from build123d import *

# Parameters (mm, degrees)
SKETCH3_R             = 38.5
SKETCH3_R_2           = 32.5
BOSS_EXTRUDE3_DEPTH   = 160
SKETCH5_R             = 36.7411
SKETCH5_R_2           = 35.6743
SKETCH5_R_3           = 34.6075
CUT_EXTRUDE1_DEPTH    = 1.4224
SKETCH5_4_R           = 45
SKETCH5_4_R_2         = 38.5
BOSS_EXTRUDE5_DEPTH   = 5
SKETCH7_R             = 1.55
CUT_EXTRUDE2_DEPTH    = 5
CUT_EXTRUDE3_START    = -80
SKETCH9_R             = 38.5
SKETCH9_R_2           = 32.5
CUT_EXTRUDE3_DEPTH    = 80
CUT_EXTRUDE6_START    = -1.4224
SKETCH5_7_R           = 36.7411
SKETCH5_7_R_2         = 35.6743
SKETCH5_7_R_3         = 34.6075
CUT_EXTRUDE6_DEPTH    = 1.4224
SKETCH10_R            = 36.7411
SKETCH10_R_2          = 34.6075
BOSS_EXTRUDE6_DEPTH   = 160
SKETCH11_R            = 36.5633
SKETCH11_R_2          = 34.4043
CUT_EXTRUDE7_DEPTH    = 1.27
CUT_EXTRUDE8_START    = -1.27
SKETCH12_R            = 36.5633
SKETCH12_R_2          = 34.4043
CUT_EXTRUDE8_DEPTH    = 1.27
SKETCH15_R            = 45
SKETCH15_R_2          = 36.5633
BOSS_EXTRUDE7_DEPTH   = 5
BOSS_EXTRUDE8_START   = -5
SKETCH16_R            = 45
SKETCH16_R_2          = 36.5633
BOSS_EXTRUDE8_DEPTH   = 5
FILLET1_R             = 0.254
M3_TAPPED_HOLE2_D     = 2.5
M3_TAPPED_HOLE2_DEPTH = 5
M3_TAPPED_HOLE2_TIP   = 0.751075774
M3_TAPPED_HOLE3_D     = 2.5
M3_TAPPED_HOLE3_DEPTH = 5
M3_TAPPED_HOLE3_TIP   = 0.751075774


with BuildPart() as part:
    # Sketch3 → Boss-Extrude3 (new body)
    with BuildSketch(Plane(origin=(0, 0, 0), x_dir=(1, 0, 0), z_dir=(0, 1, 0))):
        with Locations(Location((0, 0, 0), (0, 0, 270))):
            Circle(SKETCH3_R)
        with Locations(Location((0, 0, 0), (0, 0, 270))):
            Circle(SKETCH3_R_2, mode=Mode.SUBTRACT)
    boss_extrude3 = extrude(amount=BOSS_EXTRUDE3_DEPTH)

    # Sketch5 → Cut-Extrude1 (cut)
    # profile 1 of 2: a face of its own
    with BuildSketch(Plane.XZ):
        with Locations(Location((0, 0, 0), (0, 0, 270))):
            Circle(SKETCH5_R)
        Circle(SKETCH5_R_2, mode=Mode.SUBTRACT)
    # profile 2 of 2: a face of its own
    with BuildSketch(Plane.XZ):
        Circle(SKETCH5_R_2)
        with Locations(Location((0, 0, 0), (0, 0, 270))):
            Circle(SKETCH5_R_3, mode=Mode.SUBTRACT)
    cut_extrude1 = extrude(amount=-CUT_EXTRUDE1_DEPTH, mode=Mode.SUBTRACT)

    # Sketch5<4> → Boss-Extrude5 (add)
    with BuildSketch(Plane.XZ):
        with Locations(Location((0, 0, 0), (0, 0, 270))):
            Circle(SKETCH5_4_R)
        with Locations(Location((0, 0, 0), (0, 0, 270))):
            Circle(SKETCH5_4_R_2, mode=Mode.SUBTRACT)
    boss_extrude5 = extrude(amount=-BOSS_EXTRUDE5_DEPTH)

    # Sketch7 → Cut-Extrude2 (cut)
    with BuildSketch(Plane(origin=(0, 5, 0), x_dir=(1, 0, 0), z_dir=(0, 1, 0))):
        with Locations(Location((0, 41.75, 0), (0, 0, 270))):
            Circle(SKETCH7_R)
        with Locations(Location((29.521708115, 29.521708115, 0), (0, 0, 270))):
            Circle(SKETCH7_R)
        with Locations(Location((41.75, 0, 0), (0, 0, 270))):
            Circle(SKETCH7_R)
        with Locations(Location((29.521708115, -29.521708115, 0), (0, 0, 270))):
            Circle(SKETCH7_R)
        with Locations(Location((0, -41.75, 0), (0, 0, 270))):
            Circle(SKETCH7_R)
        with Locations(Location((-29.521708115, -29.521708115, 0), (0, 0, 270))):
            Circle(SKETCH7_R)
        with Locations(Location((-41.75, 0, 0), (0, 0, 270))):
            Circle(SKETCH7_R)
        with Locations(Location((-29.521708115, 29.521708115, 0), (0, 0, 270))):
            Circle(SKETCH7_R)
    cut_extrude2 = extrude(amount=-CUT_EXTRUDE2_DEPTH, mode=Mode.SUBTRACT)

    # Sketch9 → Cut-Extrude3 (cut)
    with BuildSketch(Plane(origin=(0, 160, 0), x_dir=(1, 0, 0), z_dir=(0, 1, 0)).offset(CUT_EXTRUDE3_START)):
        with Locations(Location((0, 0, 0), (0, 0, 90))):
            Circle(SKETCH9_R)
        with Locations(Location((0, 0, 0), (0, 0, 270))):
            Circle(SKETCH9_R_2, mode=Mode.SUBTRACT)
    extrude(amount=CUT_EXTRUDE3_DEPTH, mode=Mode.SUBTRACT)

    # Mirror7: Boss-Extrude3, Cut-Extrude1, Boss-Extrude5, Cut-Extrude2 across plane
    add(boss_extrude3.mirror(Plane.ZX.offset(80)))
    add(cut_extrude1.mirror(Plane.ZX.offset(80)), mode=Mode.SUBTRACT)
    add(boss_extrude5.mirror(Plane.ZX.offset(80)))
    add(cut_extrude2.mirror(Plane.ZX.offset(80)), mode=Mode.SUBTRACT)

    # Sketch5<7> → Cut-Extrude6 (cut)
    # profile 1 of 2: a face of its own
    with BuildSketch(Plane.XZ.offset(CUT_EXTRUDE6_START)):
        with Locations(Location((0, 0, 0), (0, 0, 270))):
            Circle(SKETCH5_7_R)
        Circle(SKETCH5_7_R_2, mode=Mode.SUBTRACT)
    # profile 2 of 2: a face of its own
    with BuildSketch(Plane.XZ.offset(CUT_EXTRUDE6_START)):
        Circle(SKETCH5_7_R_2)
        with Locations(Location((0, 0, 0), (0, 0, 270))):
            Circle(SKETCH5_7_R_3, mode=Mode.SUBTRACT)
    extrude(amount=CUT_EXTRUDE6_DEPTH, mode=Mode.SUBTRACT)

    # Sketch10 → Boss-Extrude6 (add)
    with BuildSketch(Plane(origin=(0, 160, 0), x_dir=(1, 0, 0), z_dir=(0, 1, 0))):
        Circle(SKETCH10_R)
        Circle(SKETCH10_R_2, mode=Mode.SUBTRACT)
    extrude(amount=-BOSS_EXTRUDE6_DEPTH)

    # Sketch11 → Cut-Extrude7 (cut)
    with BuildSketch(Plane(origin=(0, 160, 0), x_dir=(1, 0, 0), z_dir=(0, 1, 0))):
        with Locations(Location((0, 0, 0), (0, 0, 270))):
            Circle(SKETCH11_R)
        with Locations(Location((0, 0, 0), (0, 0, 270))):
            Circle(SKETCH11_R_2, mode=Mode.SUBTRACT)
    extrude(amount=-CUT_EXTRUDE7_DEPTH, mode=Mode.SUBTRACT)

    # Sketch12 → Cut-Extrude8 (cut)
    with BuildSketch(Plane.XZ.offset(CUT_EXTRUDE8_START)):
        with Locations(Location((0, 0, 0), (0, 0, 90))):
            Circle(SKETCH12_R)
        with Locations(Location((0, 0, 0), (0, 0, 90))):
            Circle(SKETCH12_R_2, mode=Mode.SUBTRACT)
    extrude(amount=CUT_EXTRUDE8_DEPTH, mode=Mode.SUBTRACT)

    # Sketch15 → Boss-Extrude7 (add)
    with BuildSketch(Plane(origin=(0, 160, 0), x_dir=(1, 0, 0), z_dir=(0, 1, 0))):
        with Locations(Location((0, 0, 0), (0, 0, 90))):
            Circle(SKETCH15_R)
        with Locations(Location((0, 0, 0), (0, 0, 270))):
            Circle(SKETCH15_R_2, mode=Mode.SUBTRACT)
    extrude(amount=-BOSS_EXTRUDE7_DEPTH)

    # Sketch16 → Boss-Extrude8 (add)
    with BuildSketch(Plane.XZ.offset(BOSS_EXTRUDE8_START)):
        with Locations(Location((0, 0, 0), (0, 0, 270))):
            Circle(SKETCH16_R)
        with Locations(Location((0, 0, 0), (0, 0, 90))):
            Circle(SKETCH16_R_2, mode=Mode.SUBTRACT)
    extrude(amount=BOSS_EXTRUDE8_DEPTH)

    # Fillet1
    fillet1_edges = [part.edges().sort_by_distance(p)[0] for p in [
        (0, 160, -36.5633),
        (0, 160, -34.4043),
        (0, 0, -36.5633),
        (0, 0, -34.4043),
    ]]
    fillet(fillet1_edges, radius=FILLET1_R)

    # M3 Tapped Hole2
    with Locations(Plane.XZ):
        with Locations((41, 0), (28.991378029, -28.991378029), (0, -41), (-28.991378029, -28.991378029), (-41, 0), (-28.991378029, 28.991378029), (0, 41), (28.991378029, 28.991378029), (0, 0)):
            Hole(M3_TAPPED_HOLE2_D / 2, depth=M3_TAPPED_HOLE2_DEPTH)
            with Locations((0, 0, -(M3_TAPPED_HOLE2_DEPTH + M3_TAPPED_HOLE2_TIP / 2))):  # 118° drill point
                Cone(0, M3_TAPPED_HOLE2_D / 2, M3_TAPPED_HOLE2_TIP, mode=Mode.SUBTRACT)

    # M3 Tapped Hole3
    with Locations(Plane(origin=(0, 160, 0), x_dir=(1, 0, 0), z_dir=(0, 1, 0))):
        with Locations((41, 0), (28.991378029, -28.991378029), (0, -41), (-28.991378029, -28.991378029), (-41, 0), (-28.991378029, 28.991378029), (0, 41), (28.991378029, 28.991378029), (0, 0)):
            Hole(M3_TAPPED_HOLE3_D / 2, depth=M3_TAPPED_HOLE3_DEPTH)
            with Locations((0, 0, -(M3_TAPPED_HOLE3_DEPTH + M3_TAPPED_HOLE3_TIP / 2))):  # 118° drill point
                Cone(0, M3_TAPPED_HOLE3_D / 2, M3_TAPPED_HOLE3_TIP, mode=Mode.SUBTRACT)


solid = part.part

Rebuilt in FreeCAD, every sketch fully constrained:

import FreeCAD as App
import Part
import Sketcher


def edges_at(feature, points):
    """Names of the edges that pass closest to the given points."""
    edges = feature.Shape.Edges
    near = lambda p: min(range(len(edges)), key=lambda i: edges[i].distToShape(Part.Vertex(*p))[0])
    return sorted({f"Edge{near(p) + 1}" for p in points})

doc = App.newDocument("Part")
params = doc.addObject("Spreadsheet::Sheet", "Params")
for row, (alias, value) in enumerate([
    ("sketch1_diameter", "77 mm"),
    ("sketch1_diameter2", "65 mm"),
    ("pad1_length", "160 mm"),
    ("pocket1_length", "1.4224 mm"),
    ("sketch3_diameter", "90 mm"),
    ("sketch3_diameter2", "77 mm"),
    ("pad2_length", "5 mm"),
    ("sketch4_diameter", "3.1 mm"),
    ("pocket2_length", "5 mm"),
    ("sketch5_diameter", "77 mm"),
    ("sketch5_diameter2", "65 mm"),
    ("pocket3_length", "80 mm"),
    ("pocket4_length", "1.4224 mm"),
    ("pad3_length", "160 mm"),
    ("pocket5_length", "1.27 mm"),
    ("pocket6_length", "1.27 mm"),
    ("sketch10_diameter", "90 mm"),
    ("pad4_length", "5 mm"),
    ("sketch11_diameter", "90 mm"),
    ("pad5_length", "5 mm"),
    ("fillet_radius", "0.254 mm"),
    ("sketch12_diameter", "2.5 mm"),
    ("hole_diameter", "2.5 mm"),
    ("hole_depth", "5 mm"),
    ("sketch13_diameter", "2.5 mm"),
    ("hole2_diameter", "2.5 mm"),
    ("hole2_depth", "5 mm"),
], start=1):
    params.set(f"A{row}", alias)
    params.set(f"B{row}", "=" + value)
    params.setAlias(f"B{row}", alias)

body = doc.addObject("PartDesign::Body", "Body")

# Sketch on XZ plane
sketch1 = body.newObject("Sketcher::SketchObject", "Sketch")
sketch1.AttachmentSupport = (doc.getObject("XZ_Plane"), [""])
sketch1.MapMode = "FlatFace"
sketch1.addGeometry([
    Part.Circle(App.Vector(0, 0, 0), App.Vector(0, 0, 1), 38),
    Part.Circle(App.Vector(0, 0, 0), App.Vector(0, 0, 1), 32),
], False)
sketch1.addConstraint([
    Sketcher.Constraint("Coincident", 0, 3, -1, 1),
    Sketcher.Constraint("Coincident", 1, 3, -1, 1),
    Sketcher.Constraint("Diameter", 0, 77.0),
    Sketcher.Constraint("Diameter", 1, 65.0),
])
sketch1.setExpression("Constraints[2]", "Params.sketch1_diameter")
sketch1.setExpression("Constraints[3]", "Params.sketch1_diameter2")
pad1 = body.newObject("PartDesign::Pad", "Pad")
pad1.Profile = sketch1
pad1.setExpression("Length", "Params.pad1_length")
pad1.Reversed = True

# Sketch on XZ plane
sketch2 = body.newObject("Sketcher::SketchObject", "Sketch001")
sketch2.AttachmentSupport = (doc.getObject("XZ_Plane"), [""])
sketch2.MapMode = "FlatFace"
sketch2.addGeometry([
    Part.Circle(App.Vector(0, 0, 0), App.Vector(0, 0, 1), 37),
    Part.Circle(App.Vector(0, 0, 0), App.Vector(0, 0, 1), 35),
], False)
sketch2.addConstraint([
    Sketcher.Constraint("Coincident", 0, 3, -1, 1),
    Sketcher.Constraint("Coincident", 1, 3, -1, 1),
    Sketcher.Constraint("Diameter", 1, 69.215),
    Sketcher.Constraint("Diameter", 0, 73.4822),
])
pocket1 = body.newObject("PartDesign::Pocket", "Pocket")
pocket1.Profile = sketch2
pocket1.setExpression("Length", "Params.pocket1_length")

# Sketch on XZ plane
sketch3 = body.newObject("Sketcher::SketchObject", "Sketch002")
sketch3.AttachmentSupport = (doc.getObject("XZ_Plane"), [""])
sketch3.MapMode = "FlatFace"
sketch3.addGeometry([
    Part.Circle(App.Vector(0, 0, 0), App.Vector(0, 0, 1), 45),
    Part.Circle(App.Vector(0, 0, 0), App.Vector(0, 0, 1), 38),
], False)
sketch3.addConstraint([
    Sketcher.Constraint("Coincident", 0, 3, -1, 1),
    Sketcher.Constraint("Coincident", 1, 3, -1, 1),
    Sketcher.Constraint("Diameter", 0, 90.0),
    Sketcher.Constraint("Diameter", 1, 77.0),
])
sketch3.setExpression("Constraints[2]", "Params.sketch3_diameter")
sketch3.setExpression("Constraints[3]", "Params.sketch3_diameter2")
pad2 = body.newObject("PartDesign::Pad", "Pad001")
pad2.Profile = sketch3
pad2.setExpression("Length", "Params.pad2_length")
pad2.Reversed = True

# Sketch on XZ plane
sketch4 = body.newObject("Sketcher::SketchObject", "Sketch003")
sketch4.AttachmentSupport = (doc.getObject("XZ_Plane"), [""])
sketch4.MapMode = "FlatFace"
sketch4.AttachmentOffset = App.Placement(App.Vector(0, 0, -5), App.Rotation())
sketch4.addGeometry([
    Part.Circle(App.Vector(0, -41.8, 0), App.Vector(0, 0, 1), 1.6),  # 0
    Part.Circle(App.Vector(29.5, -29.5, 0), App.Vector(0, 0, 1), 1.6),  # 1
    Part.Circle(App.Vector(41.8, 0, 0), App.Vector(0, 0, 1), 1.6),  # 2
    Part.Circle(App.Vector(29.5, 29.5, 0), App.Vector(0, 0, 1), 1.6),  # 3
    Part.Circle(App.Vector(0, 41.8, 0), App.Vector(0, 0, 1), 1.6),  # 4
    Part.Circle(App.Vector(-29.5, 29.5, 0), App.Vector(0, 0, 1), 1.6),  # 5
    Part.Circle(App.Vector(-41.8, 0, 0), App.Vector(0, 0, 1), 1.6),  # 6
    Part.Circle(App.Vector(-29.5, -29.5, 0), App.Vector(0, 0, 1), 1.6),  # 7
], False)
sketch4.addConstraint([
    Sketcher.Constraint("Equal", 0, 1),
    Sketcher.Constraint("Equal", 1, 2),
    Sketcher.Constraint("Equal", 2, 3),
    Sketcher.Constraint("Equal", 3, 4),
    Sketcher.Constraint("Equal", 4, 5),
    Sketcher.Constraint("Equal", 5, 6),
    Sketcher.Constraint("Equal", 6, 7),
    Sketcher.Constraint("Symmetric", 0, 3, 4, 3, -1, 1),
    Sketcher.Constraint("Symmetric", 1, 3, 5, 3, -1, 1),
    Sketcher.Constraint("Symmetric", 2, 3, 6, 3, -1, 1),
    Sketcher.Constraint("Symmetric", 3, 3, 7, 3, -1, 1),
    Sketcher.Constraint("Symmetric", 3, 3, 5, 3, -2),
    Sketcher.Constraint("PointOnObject", 0, 3, -2),
    Sketcher.Constraint("PointOnObject", 2, 3, -1),
    Sketcher.Constraint("Diameter", 0, 3.1),
    Sketcher.Constraint("DistanceY", 0, 3, 4, 3, 83.5),
    Sketcher.Constraint("DistanceX", -1, 1, 2, 3, 41.75),
    Sketcher.Constraint("DistanceX", -1, 1, 1, 3, 29.521708),
    Sketcher.Constraint("DistanceY", 1, 3, -1, 1, 29.521708),
])
sketch4.setExpression("Constraints[14]", "Params.sketch4_diameter")
pocket2 = body.newObject("PartDesign::Pocket", "Pocket001")
pocket2.Profile = sketch4
pocket2.setExpression("Length", "Params.pocket2_length")
pocket2.Reversed = True

# Sketch on XZ plane
sketch5 = body.newObject("Sketcher::SketchObject", "Sketch004")
sketch5.AttachmentSupport = (doc.getObject("XZ_Plane"), [""])
sketch5.MapMode = "FlatFace"
sketch5.AttachmentOffset = App.Placement(App.Vector(0, 0, -80), App.Rotation())
sketch5.addGeometry([
    Part.Circle(App.Vector(0, 0, 0), App.Vector(0, 0, 1), 38),
    Part.Circle(App.Vector(0, 0, 0), App.Vector(0, 0, 1), 32),
], False)
sketch5.addConstraint([
    Sketcher.Constraint("Coincident", 0, 3, -1, 1),
    Sketcher.Constraint("Coincident", 1, 3, -1, 1),
    Sketcher.Constraint("Diameter", 0, 77.0),
    Sketcher.Constraint("Diameter", 1, 65.0),
])
sketch5.setExpression("Constraints[2]", "Params.sketch5_diameter")
sketch5.setExpression("Constraints[3]", "Params.sketch5_diameter2")
pocket3 = body.newObject("PartDesign::Pocket", "Pocket002")
pocket3.Profile = sketch5
pocket3.setExpression("Length", "Params.pocket3_length")
doc.recompute()

datumplane = body.newObject("PartDesign::Plane", "DatumPlane")
datumplane.AttachmentSupport = (doc.getObject("XZ_Plane"), [""])
datumplane.MapMode = "FlatFace"
datumplane.AttachmentOffset = App.Placement(App.Vector(0, 0, -80), App.Rotation())
mirrored = body.newObject("PartDesign::Mirrored", "Mirrored")
mirrored.Originals = [pad1, pocket1, pad2, pocket2]
mirrored.MirrorPlane = (datumplane, [""])
body.Tip = mirrored

# Sketch on XZ plane
sketch6 = body.newObject("Sketcher::SketchObject", "Sketch005")
sketch6.AttachmentSupport = (doc.getObject("XZ_Plane"), [""])
sketch6.MapMode = "FlatFace"
sketch6.AttachmentOffset = App.Placement(App.Vector(0, 0, -1.4224), App.Rotation())
sketch6.addGeometry([
    Part.Circle(App.Vector(0, 0, 0), App.Vector(0, 0, 1), 37),
    Part.Circle(App.Vector(0, 0, 0), App.Vector(0, 0, 1), 35),
], False)
sketch6.addConstraint([
    Sketcher.Constraint("Coincident", 0, 3, -1, 1),
    Sketcher.Constraint("Coincident", 1, 3, -1, 1),
    Sketcher.Constraint("Diameter", 1, 69.215),
    Sketcher.Constraint("Diameter", 0, 73.4822),
])
pocket4 = body.newObject("PartDesign::Pocket", "Pocket003")
pocket4.Profile = sketch6
pocket4.setExpression("Length", "Params.pocket4_length")
pocket4.Reversed = True

# Sketch on XZ plane
sketch7 = body.newObject("Sketcher::SketchObject", "Sketch006")
sketch7.AttachmentSupport = (doc.getObject("XZ_Plane"), [""])
sketch7.MapMode = "FlatFace"
sketch7.AttachmentOffset = App.Placement(App.Vector(0, 0, -160), App.Rotation())
sketch7.addGeometry([
    Part.Circle(App.Vector(0, 0, 0), App.Vector(0, 0, 1), 37),
    Part.Circle(App.Vector(0, 0, 0), App.Vector(0, 0, 1), 35),
], False)
sketch7.addConstraint([
    Sketcher.Constraint("Coincident", 0, 3, -1, 1),
    Sketcher.Constraint("Coincident", 1, 3, -1, 1),
    Sketcher.Constraint("Diameter", 1, 69.215),
    Sketcher.Constraint("Diameter", 0, 73.4822),
])
pad3 = body.newObject("PartDesign::Pad", "Pad002")
pad3.Profile = sketch7
pad3.setExpression("Length", "Params.pad3_length")

# Sketch on XZ plane
sketch8 = body.newObject("Sketcher::SketchObject", "Sketch007")
sketch8.AttachmentSupport = (doc.getObject("XZ_Plane"), [""])
sketch8.MapMode = "FlatFace"
sketch8.AttachmentOffset = App.Placement(App.Vector(0, 0, -160), App.Rotation())
sketch8.addGeometry([
    Part.Circle(App.Vector(0, 0, 0), App.Vector(0, 0, 1), 37),
    Part.Circle(App.Vector(0, 0, 0), App.Vector(0, 0, 1), 34),
], False)
sketch8.addConstraint([
    Sketcher.Constraint("Coincident", 0, 3, -1, 1),
    Sketcher.Constraint("Coincident", 1, 3, -1, 1),
    Sketcher.Constraint("Diameter", 0, 73.1266),
    Sketcher.Constraint("Diameter", 1, 68.8086),
])
pocket5 = body.newObject("PartDesign::Pocket", "Pocket004")
pocket5.Profile = sketch8
pocket5.setExpression("Length", "Params.pocket5_length")
pocket5.Reversed = True

# Sketch on XZ plane
sketch9 = body.newObject("Sketcher::SketchObject", "Sketch008")
sketch9.AttachmentSupport = (doc.getObject("XZ_Plane"), [""])
sketch9.MapMode = "FlatFace"
sketch9.AttachmentOffset = App.Placement(App.Vector(0, 0, -1.27), App.Rotation())
sketch9.addGeometry([
    Part.Circle(App.Vector(0, 0, 0), App.Vector(0, 0, 1), 37),
    Part.Circle(App.Vector(0, 0, 0), App.Vector(0, 0, 1), 34),
], False)
sketch9.addConstraint([
    Sketcher.Constraint("Coincident", 0, 3, -1, 1),
    Sketcher.Constraint("Coincident", 1, 3, -1, 1),
    Sketcher.Constraint("Diameter", 0, 73.1266),
    Sketcher.Constraint("Diameter", 1, 68.8086),
])
pocket6 = body.newObject("PartDesign::Pocket", "Pocket005")
pocket6.Profile = sketch9
pocket6.setExpression("Length", "Params.pocket6_length")
pocket6.Reversed = True

# Sketch on XZ plane
sketch10 = body.newObject("Sketcher::SketchObject", "Sketch009")
sketch10.AttachmentSupport = (doc.getObject("XZ_Plane"), [""])
sketch10.MapMode = "FlatFace"
sketch10.AttachmentOffset = App.Placement(App.Vector(0, 0, -160), App.Rotation())
sketch10.addGeometry([
    Part.Circle(App.Vector(0, 0, 0), App.Vector(0, 0, 1), 45),
    Part.Circle(App.Vector(0, 0, 0), App.Vector(0, 0, 1), 37),
], False)
sketch10.addConstraint([
    Sketcher.Constraint("Coincident", 0, 3, -1, 1),
    Sketcher.Constraint("Coincident", 1, 3, -1, 1),
    Sketcher.Constraint("Diameter", 0, 90.0),
    Sketcher.Constraint("Diameter", 1, 73.1266),
])
sketch10.setExpression("Constraints[2]", "Params.sketch10_diameter")
pad4 = body.newObject("PartDesign::Pad", "Pad003")
pad4.Profile = sketch10
pad4.setExpression("Length", "Params.pad4_length")

# Sketch on XZ plane
sketch11 = body.newObject("Sketcher::SketchObject", "Sketch010")
sketch11.AttachmentSupport = (doc.getObject("XZ_Plane"), [""])
sketch11.MapMode = "FlatFace"
sketch11.AttachmentOffset = App.Placement(App.Vector(0, 0, -5), App.Rotation())
sketch11.addGeometry([
    Part.Circle(App.Vector(0, 0, 0), App.Vector(0, 0, 1), 45),
    Part.Circle(App.Vector(0, 0, 0), App.Vector(0, 0, 1), 37),
], False)
sketch11.addConstraint([
    Sketcher.Constraint("Coincident", 0, 3, -1, 1),
    Sketcher.Constraint("Coincident", 1, 3, -1, 1),
    Sketcher.Constraint("Diameter", 0, 90.0),
    Sketcher.Constraint("Diameter", 1, 73.1266),
])
sketch11.setExpression("Constraints[2]", "Params.sketch11_diameter")
pad5 = body.newObject("PartDesign::Pad", "Pad004")
pad5.Profile = sketch11
pad5.setExpression("Length", "Params.pad5_length")
doc.recompute()

fillet = body.newObject("PartDesign::Fillet", "Fillet")
fillet.Base = (pad5, edges_at(pad5, [
    (0, 160, -36.563),
    (0, 160, -34.404),
    (0, 0, -36.563),
    (0, 0, -34.404),
]))
fillet.setExpression("Radius", "Params.fillet_radius")

# Sketch on XZ plane
sketch12 = body.newObject("Sketcher::SketchObject", "Sketch011")
sketch12.AttachmentSupport = (doc.getObject("XZ_Plane"), [""])
sketch12.MapMode = "FlatFace"
sketch12.addGeometry([
    Part.Circle(App.Vector(41, 0, 0), App.Vector(0, 0, 1), 1.2),  # 0
    Part.Circle(App.Vector(29, -29, 0), App.Vector(0, 0, 1), 1.2),  # 1
    Part.Circle(App.Vector(0, -41, 0), App.Vector(0, 0, 1), 1.2),  # 2
    Part.Circle(App.Vector(-29, -29, 0), App.Vector(0, 0, 1), 1.2),  # 3
    Part.Circle(App.Vector(-41, 0, 0), App.Vector(0, 0, 1), 1.2),  # 4
    Part.Circle(App.Vector(-29, 29, 0), App.Vector(0, 0, 1), 1.2),  # 5
    Part.Circle(App.Vector(0, 41, 0), App.Vector(0, 0, 1), 1.2),  # 6
    Part.Circle(App.Vector(29, 29, 0), App.Vector(0, 0, 1), 1.2),  # 7
    Part.Circle(App.Vector(0, 0, 0), App.Vector(0, 0, 1), 1.2),  # 8
], False)
sketch12.addConstraint([
    Sketcher.Constraint("Coincident", 8, 3, -1, 1),
    Sketcher.Constraint("Equal", 0, 1),
    Sketcher.Constraint("Equal", 1, 2),
    Sketcher.Constraint("Equal", 2, 3),
    Sketcher.Constraint("Equal", 3, 4),
    Sketcher.Constraint("Equal", 4, 5),
    Sketcher.Constraint("Equal", 5, 6),
    Sketcher.Constraint("Equal", 6, 7),
    Sketcher.Constraint("Equal", 7, 8),
    Sketcher.Constraint("Symmetric", 0, 3, 4, 3, -1, 1),
    Sketcher.Constraint("Symmetric", 1, 3, 5, 3, -1, 1),
    Sketcher.Constraint("Symmetric", 2, 3, 6, 3, -1, 1),
    Sketcher.Constraint("Symmetric", 3, 3, 7, 3, -1, 1),
    Sketcher.Constraint("Symmetric", 1, 3, 3, 3, -2),
    Sketcher.Constraint("PointOnObject", 0, 3, -1),
    Sketcher.Constraint("PointOnObject", 2, 3, -2),
    Sketcher.Constraint("Diameter", 0, 2.5),
    Sketcher.Constraint("DistanceX", -1, 1, 0, 3, 41.0),
    Sketcher.Constraint("DistanceY", 2, 3, -1, 1, 41.0),
    Sketcher.Constraint("DistanceX", -1, 1, 1, 3, 28.991378),
    Sketcher.Constraint("DistanceY", 1, 3, -1, 1, 28.991378),
])
sketch12.setExpression("Constraints[16]", "Params.sketch12_diameter")
doc.recompute()
hole = body.newObject("PartDesign::Hole", "Hole")
hole.Profile = sketch12
hole.ThreadType = "None"
hole.setExpression("Diameter", "Params.hole_diameter")
hole.DepthType = "Dimension"
hole.setExpression("Depth", "Params.hole_depth")
hole.DrillPoint = "Angled"
hole.DrillPointAngle = 118

# Sketch on XZ plane
sketch13 = body.newObject("Sketcher::SketchObject", "Sketch012")
sketch13.AttachmentSupport = (doc.getObject("XZ_Plane"), [""])
sketch13.MapMode = "FlatFace"
sketch13.AttachmentOffset = App.Placement(App.Vector(0, 0, -160), App.Rotation())
sketch13.addGeometry([
    Part.Circle(App.Vector(41, 0, 0), App.Vector(0, 0, 1), 1.2),  # 0
    Part.Circle(App.Vector(29, 29, 0), App.Vector(0, 0, 1), 1.2),  # 1
    Part.Circle(App.Vector(0, 41, 0), App.Vector(0, 0, 1), 1.2),  # 2
    Part.Circle(App.Vector(-29, 29, 0), App.Vector(0, 0, 1), 1.2),  # 3
    Part.Circle(App.Vector(-41, 0, 0), App.Vector(0, 0, 1), 1.2),  # 4
    Part.Circle(App.Vector(-29, -29, 0), App.Vector(0, 0, 1), 1.2),  # 5
    Part.Circle(App.Vector(0, -41, 0), App.Vector(0, 0, 1), 1.2),  # 6
    Part.Circle(App.Vector(29, -29, 0), App.Vector(0, 0, 1), 1.2),  # 7
    Part.Circle(App.Vector(0, 0, 0), App.Vector(0, 0, 1), 1.2),  # 8
], False)
sketch13.addConstraint([
    Sketcher.Constraint("Coincident", 8, 3, -1, 1),
    Sketcher.Constraint("Equal", 0, 1),
    Sketcher.Constraint("Equal", 1, 2),
    Sketcher.Constraint("Equal", 2, 3),
    Sketcher.Constraint("Equal", 3, 4),
    Sketcher.Constraint("Equal", 4, 5),
    Sketcher.Constraint("Equal", 5, 6),
    Sketcher.Constraint("Equal", 6, 7),
    Sketcher.Constraint("Equal", 7, 8),
    Sketcher.Constraint("Symmetric", 0, 3, 4, 3, -1, 1),
    Sketcher.Constraint("Symmetric", 1, 3, 5, 3, -1, 1),
    Sketcher.Constraint("Symmetric", 2, 3, 6, 3, -1, 1),
    Sketcher.Constraint("Symmetric", 3, 3, 7, 3, -1, 1),
    Sketcher.Constraint("Symmetric", 1, 3, 3, 3, -2),
    Sketcher.Constraint("PointOnObject", 0, 3, -1),
    Sketcher.Constraint("PointOnObject", 2, 3, -2),
    Sketcher.Constraint("Diameter", 0, 2.5),
    Sketcher.Constraint("DistanceX", -1, 1, 0, 3, 41.0),
    Sketcher.Constraint("DistanceY", -1, 1, 2, 3, 41.0),
    Sketcher.Constraint("DistanceX", -1, 1, 1, 3, 28.991378),
    Sketcher.Constraint("DistanceY", -1, 1, 1, 3, 28.991378),
])
sketch13.setExpression("Constraints[16]", "Params.sketch13_diameter")
doc.recompute()
hole2 = body.newObject("PartDesign::Hole", "Hole001")
hole2.Profile = sketch13
hole2.ThreadType = "None"
hole2.setExpression("Diameter", "Params.hole2_diameter")
hole2.DepthType = "Dimension"
hole2.setExpression("Depth", "Params.hole2_depth")
hole2.DrillPoint = "Angled"
hole2.DrillPointAngle = 118
hole2.Reversed = True

doc.recompute()
